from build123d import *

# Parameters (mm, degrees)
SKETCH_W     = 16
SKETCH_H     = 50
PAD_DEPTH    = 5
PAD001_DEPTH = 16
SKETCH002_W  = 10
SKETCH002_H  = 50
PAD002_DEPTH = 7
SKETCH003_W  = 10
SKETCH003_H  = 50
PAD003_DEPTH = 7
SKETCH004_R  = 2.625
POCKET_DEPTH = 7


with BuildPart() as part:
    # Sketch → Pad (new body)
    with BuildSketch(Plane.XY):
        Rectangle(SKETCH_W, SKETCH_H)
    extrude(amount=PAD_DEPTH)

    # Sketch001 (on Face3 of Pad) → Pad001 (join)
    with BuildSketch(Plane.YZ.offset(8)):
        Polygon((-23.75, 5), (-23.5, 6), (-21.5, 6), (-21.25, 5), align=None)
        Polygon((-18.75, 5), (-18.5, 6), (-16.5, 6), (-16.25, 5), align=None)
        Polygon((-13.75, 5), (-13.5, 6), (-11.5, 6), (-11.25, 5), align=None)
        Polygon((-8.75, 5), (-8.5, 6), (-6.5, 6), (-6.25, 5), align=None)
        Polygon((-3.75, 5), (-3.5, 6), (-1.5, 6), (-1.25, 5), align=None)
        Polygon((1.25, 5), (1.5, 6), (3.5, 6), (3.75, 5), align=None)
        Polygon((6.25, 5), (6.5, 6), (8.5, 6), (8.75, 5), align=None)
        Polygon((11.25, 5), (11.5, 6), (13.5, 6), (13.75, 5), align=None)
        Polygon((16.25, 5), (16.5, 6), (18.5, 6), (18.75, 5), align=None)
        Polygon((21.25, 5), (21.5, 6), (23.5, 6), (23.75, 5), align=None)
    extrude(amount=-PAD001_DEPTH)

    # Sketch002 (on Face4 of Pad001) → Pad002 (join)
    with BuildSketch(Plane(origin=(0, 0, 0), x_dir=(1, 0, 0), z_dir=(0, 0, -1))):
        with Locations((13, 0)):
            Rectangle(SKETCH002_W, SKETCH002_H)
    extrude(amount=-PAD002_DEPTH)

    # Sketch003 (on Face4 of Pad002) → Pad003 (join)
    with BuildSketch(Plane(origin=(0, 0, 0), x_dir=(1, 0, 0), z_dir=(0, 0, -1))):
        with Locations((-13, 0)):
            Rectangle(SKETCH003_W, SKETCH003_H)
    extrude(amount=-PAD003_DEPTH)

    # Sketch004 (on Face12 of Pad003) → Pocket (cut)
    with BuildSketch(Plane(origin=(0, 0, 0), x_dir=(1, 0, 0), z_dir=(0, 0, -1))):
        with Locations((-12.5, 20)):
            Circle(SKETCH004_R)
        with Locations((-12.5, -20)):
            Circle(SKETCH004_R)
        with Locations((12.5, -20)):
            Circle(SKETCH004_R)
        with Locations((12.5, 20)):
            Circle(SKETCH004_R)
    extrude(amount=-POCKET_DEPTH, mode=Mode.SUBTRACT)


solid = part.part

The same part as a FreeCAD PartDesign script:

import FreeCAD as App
import Part
import Sketcher
from FreeCAD import Vector

doc = App.newDocument("Part")
body = doc.addObject("PartDesign::Body", "Body")

# Sketch on XY plane
sketch1 = doc.addObject("Sketcher::SketchObject", "Sketch")
body.addObject(sketch1)
sketch1.AttachmentSupport = (doc.XY_Plane, [""])
sketch1.MapMode = "FlatFace"
sketch1.addGeometry([
    Part.LineSegment(Vector(-8, 25, 0), Vector(-8, -25, 0)),
    Part.LineSegment(Vector(-8, -25, 0), Vector(8, -25, 0)),
    Part.LineSegment(Vector(8, -25, 0), Vector(8, 25, 0)),
    Part.LineSegment(Vector(8, 25, 0), Vector(-8, 25, 0)),
], False)
sketch1.addConstraint([
    Sketcher.Constraint("Coincident", 0, 2, 1, 1),
    Sketcher.Constraint("Coincident", 1, 2, 2, 1),
    Sketcher.Constraint("Coincident", 2, 2, 3, 1),
    Sketcher.Constraint("Coincident", 3, 2, 0, 1),
    Sketcher.Constraint("Vertical", 0),
    Sketcher.Constraint("Horizontal", 1),
    Sketcher.Constraint("Vertical", 2),
    Sketcher.Constraint("Horizontal", 3),
    Sketcher.Constraint("Symmetric", 0, 2, 2, 2, -1, 1),
    Sketcher.Constraint("DistanceX", 1, 1, 1, 2, 16.0),
    Sketcher.Constraint("DistanceY", 0, 2, 0, 1, 50.0),
])
pad1 = doc.addObject("PartDesign::Pad", "Pad")
body.addObject(pad1)
pad1.Profile = sketch1
pad1.Length = 5

# Sketch on YZ plane
sketch2 = doc.addObject("Sketcher::SketchObject", "Sketch001")
body.addObject(sketch2)
sketch2.AttachmentSupport = (doc.YZ_Plane, [""])
sketch2.MapMode = "FlatFace"
sketch2.AttachmentOffset = App.Placement(Vector(0, 0, 8), App.Rotation())
sketch2.addGeometry([
    Part.LineSegment(Vector(-23.5, 6, 0), Vector(-23.75, 5, 0)),  # 0
    Part.LineSegment(Vector(-23.75, 5, 0), Vector(-21.25, 5, 0)),  # 1
    Part.LineSegment(Vector(-21.25, 5, 0), Vector(-21.5, 6, 0)),  # 2
    Part.LineSegment(Vector(-21.5, 6, 0), Vector(-23.5, 6, 0)),  # 3
    Part.LineSegment(Vector(-18.5, 6, 0), Vector(-18.75, 5, 0)),  # 4
    Part.LineSegment(Vector(-18.75, 5, 0), Vector(-16.25, 5, 0)),  # 5
    Part.LineSegment(Vector(-16.25, 5, 0), Vector(-16.5, 6, 0)),  # 6
    Part.LineSegment(Vector(-16.5, 6, 0), Vector(-18.5, 6, 0)),  # 7
    Part.LineSegment(Vector(-13.5, 6, 0), Vector(-13.75, 5, 0)),  # 8
    Part.LineSegment(Vector(-13.75, 5, 0), Vector(-11.25, 5, 0)),  # 9
    Part.LineSegment(Vector(-11.25, 5, 0), Vector(-11.5, 6, 0)),  # 10
    Part.LineSegment(Vector(-11.5, 6, 0), Vector(-13.5, 6, 0)),  # 11
    Part.LineSegment(Vector(-8.5, 6, 0), Vector(-8.75, 5, 0)),  # 12
    Part.LineSegment(Vector(-8.75, 5, 0), Vector(-6.25, 5, 0)),  # 13
    Part.LineSegment(Vector(-6.25, 5, 0), Vector(-6.5, 6, 0)),  # 14
    Part.LineSegment(Vector(-6.5, 6, 0), Vector(-8.5, 6, 0)),  # 15
    Part.LineSegment(Vector(-3.5, 6, 0), Vector(-3.75, 5, 0)),  # 16
    Part.LineSegment(Vector(-3.75, 5, 0), Vector(-1.25, 5, 0)),  # 17
    Part.LineSegment(Vector(-1.25, 5, 0), Vector(-1.5, 6, 0)),  # 18
    Part.LineSegment(Vector(-1.5, 6, 0), Vector(-3.5, 6, 0)),  # 19
    Part.LineSegment(Vector(1.5, 6, 0), Vector(1.25, 5, 0)),  # 20
    Part.LineSegment(Vector(1.25, 5, 0), Vector(3.75, 5, 0)),  # 21
    Part.LineSegment(Vector(3.75, 5, 0), Vector(3.5, 6, 0)),  # 22
    Part.LineSegment(Vector(3.5, 6, 0), Vector(1.5, 6, 0)),  # 23
    Part.LineSegment(Vector(6.5, 6, 0), Vector(6.25, 5, 0)),  # 24
    Part.LineSegment(Vector(6.25, 5, 0), Vector(8.75, 5, 0)),  # 25
    Part.LineSegment(Vector(8.75, 5, 0), Vector(8.5, 6, 0)),  # 26
    Part.LineSegment(Vector(8.5, 6, 0), Vector(6.5, 6, 0)),  # 27
    Part.LineSegment(Vector(11.5, 6, 0), Vector(11.25, 5, 0)),  # 28
    Part.LineSegment(Vector(11.25, 5, 0), Vector(13.75, 5, 0)),  # 29
    Part.LineSegment(Vector(13.75, 5, 0), Vector(13.5, 6, 0)),  # 30
    Part.LineSegment(Vector(13.5, 6, 0), Vector(11.5, 6, 0)),  # 31
    Part.LineSegment(Vector(16.5, 6, 0), Vector(16.25, 5, 0)),  # 32
    Part.LineSegment(Vector(16.25, 5, 0), Vector(18.75, 5, 0)),  # 33
    Part.LineSegment(Vector(18.75, 5, 0), Vector(18.5, 6, 0)),  # 34
    Part.LineSegment(Vector(18.5, 6, 0), Vector(16.5, 6, 0)),  # 35
    Part.LineSegment(Vector(21.5, 6, 0), Vector(21.25, 5, 0)),  # 36
    Part.LineSegment(Vector(21.25, 5, 0), Vector(23.75, 5, 0)),  # 37
    Part.LineSegment(Vector(23.75, 5, 0), Vector(23.5, 6, 0)),  # 38
    Part.LineSegment(Vector(23.5, 6, 0), Vector(21.5, 6, 0)),  # 39
], False)
sketch2.addConstraint([
    Sketcher.Constraint("Coincident", 0, 2, 1, 1),
    Sketcher.Constraint("Coincident", 1, 2, 2, 1),
    Sketcher.Constraint("Coincident", 2, 2, 3, 1),
    Sketcher.Constraint("Coincident", 3, 2, 0, 1),
    Sketcher.Constraint("Coincident", 4, 2, 5, 1),
    Sketcher.Constraint("Coincident", 5, 2, 6, 1),
    Sketcher.Constraint("Coincident", 6, 2, 7, 1),
    Sketcher.Constraint("Coincident", 7, 2, 4, 1),
    Sketcher.Constraint("Coincident", 8, 2, 9, 1),
    Sketcher.Constraint("Coincident", 9, 2, 10, 1),
    Sketcher.Constraint("Coincident", 10, 2, 11, 1),
    Sketcher.Constraint("Coincident", 11, 2, 8, 1),
    Sketcher.Constraint("Coincident", 12, 2, 13, 1),
    Sketcher.Constraint("Coincident", 13, 2, 14, 1),
    Sketcher.Constraint("Coincident", 14, 2, 15, 1),
    Sketcher.Constraint("Coincident", 15, 2, 12, 1),
    Sketcher.Constraint("Coincident", 16, 2, 17, 1),
    Sketcher.Constraint("Coincident", 17, 2, 18, 1),
    Sketcher.Constraint("Coincident", 18, 2, 19, 1),
    Sketcher.Constraint("Coincident", 19, 2, 16, 1),
    Sketcher.Constraint("Coincident", 20, 2, 21, 1),
    Sketcher.Constraint("Coincident", 21, 2, 22, 1),
    Sketcher.Constraint("Coincident", 22, 2, 23, 1),
    Sketcher.Constraint("Coincident", 23, 2, 20, 1),
    Sketcher.Constraint("Coincident", 24, 2, 25, 1),
    Sketcher.Constraint("Coincident", 25, 2, 26, 1),
    Sketcher.Constraint("Coincident", 26, 2, 27, 1),
    Sketcher.Constraint("Coincident", 27, 2, 24, 1),
    Sketcher.Constraint("Coincident", 28, 2, 29, 1),
    Sketcher.Constraint("Coincident", 29, 2, 30, 1),
    Sketcher.Constraint("Coincident", 30, 2, 31, 1),
    Sketcher.Constraint("Coincident", 31, 2, 28, 1),
    Sketcher.Constraint("Coincident", 32, 2, 33, 1),
    Sketcher.Constraint("Coincident", 33, 2, 34, 1),
    Sketcher.Constraint("Coincident", 34, 2, 35, 1),
    Sketcher.Constraint("Coincident", 35, 2, 32, 1),
    Sketcher.Constraint("Coincident", 36, 2, 37, 1),
    Sketcher.Constraint("Coincident", 37, 2, 38, 1),
    Sketcher.Constraint("Coincident", 38, 2, 39, 1),
    Sketcher.Constraint("Coincident", 39, 2, 36, 1),
    Sketcher.Constraint("Horizontal", 1),
    Sketcher.Constraint("Horizontal", 3),
    Sketcher.Constraint("Horizontal", 5),
    Sketcher.Constraint("Horizontal", 7),
    Sketcher.Constraint("Horizontal", 9),
    Sketcher.Constraint("Horizontal", 11),
    Sketcher.Constraint("Horizontal", 13),
    Sketcher.Constraint("Horizontal", 15),
    Sketcher.Constraint("Horizontal", 17),
    Sketcher.Constraint("Horizontal", 19),
    Sketcher.Constraint("Horizontal", 21),
    Sketcher.Constraint("Horizontal", 23),
    Sketcher.Constraint("Horizontal", 25),
    Sketcher.Constraint("Horizontal", 27),
    Sketcher.Constraint("Horizontal", 29),
    Sketcher.Constraint("Horizontal", 31),
    Sketcher.Constraint("Horizontal", 33),
    Sketcher.Constraint("Horizontal", 35),
    Sketcher.Constraint("Horizontal", 37),
    Sketcher.Constraint("Horizontal", 39),
    Sketcher.Constraint("Symmetric", 17, 2, 20, 2, -2),
    Sketcher.Constraint("Symmetric", 19, 2, 22, 2, -2),
    Sketcher.Constraint("Symmetric", 13, 2, 24, 2, -2),
    Sketcher.Constraint("Symmetric", 15, 2, 26, 2, -2),
    Sketcher.Constraint("Symmetric", 9, 2, 28, 2, -2),
    Sketcher.Constraint("Symmetric", 11, 2, 30, 2, -2),
    Sketcher.Constraint("Symmetric", 5, 2, 32, 2, -2),
    Sketcher.Constraint("Symmetric", 7, 2, 34, 2, -2),
    Sketcher.Constraint("Symmetric", 1, 2, 36, 2, -2),
    Sketcher.Constraint("Symmetric", 3, 2, 38, 2, -2),
    Sketcher.Constraint("Parallel", 0, 4),
    Sketcher.Constraint("Parallel", 2, 6),
    Sketcher.Constraint("Parallel", 4, 8),
    Sketcher.Constraint("Parallel", 6, 10),
    Sketcher.Constraint("Parallel", 8, 12),
    Sketcher.Constraint("Parallel", 10, 14),
    Sketcher.Constraint("Parallel", 12, 16),
    Sketcher.Constraint("Parallel", 14, 18),
    Sketcher.Constraint("Parallel", 16, 20),
    Sketcher.Constraint("Parallel", 18, 22),
    Sketcher.Constraint("Parallel", 20, 24),
    Sketcher.Constraint("Parallel", 22, 26),
    Sketcher.Constraint("Parallel", 24, 28),
    Sketcher.Constraint("Parallel", 26, 30),
    Sketcher.Constraint("Parallel", 28, 32),
    Sketcher.Constraint("Parallel", 30, 34),
    Sketcher.Constraint("Parallel", 32, 36),
    Sketcher.Constraint("Parallel", 34, 38),
    Sketcher.Constraint("Horizontal", 1, 2, 4, 2),
    Sketcher.Constraint("Horizontal", 3, 2, 6, 2),
    Sketcher.Constraint("Horizontal", 5, 2, 8, 2),
    Sketcher.Constraint("Horizontal", 7, 2, 10, 2),
    Sketcher.Constraint("Horizontal", 9, 2, 12, 2),
    Sketcher.Constraint("Horizontal", 11, 2, 14, 2),
    Sketcher.Constraint("Horizontal", 13, 2, 16, 2),
    Sketcher.Constraint("Horizontal", 15, 2, 18, 2),
    Sketcher.Constraint("Equal", 1, 5),
    Sketcher.Constraint("Equal", 5, 9),
    Sketcher.Constraint("Equal", 9, 13),
    Sketcher.Constraint("Equal", 13, 17),
    Sketcher.Constraint("Equal", 17, 21),
    Sketcher.Constraint("DistanceX", 3, 2, 3, 1, 2.0),
    Sketcher.Constraint("DistanceX", 1, 1, 1, 2, 2.5),
    Sketcher.Constraint("DistanceY", -1, 1, 0, 2, 5.0),
    Sketcher.Constraint("DistanceY", -1, 1, 2, 2, 6.0),
    Sketcher.Constraint("DistanceX", 0, 2, 4, 2, 5.0),
    Sketcher.Constraint("DistanceX", 4, 2, 8, 2, 5.0),
    Sketcher.Constraint("DistanceX", 8, 2, 12, 2, 5.0),
    Sketcher.Constraint("DistanceX", 12, 2, 16, 2, 5.0),
    Sketcher.Constraint("DistanceX", 16, 2, 20, 2, 5.0),
])
pad2 = doc.addObject("PartDesign::Pad", "Pad001")
body.addObject(pad2)
pad2.Profile = sketch2
pad2.Length = 16
pad2.Reversed = True

# Sketch on XY plane
sketch3 = doc.addObject("Sketcher::SketchObject", "Sketch002")
body.addObject(sketch3)
sketch3.AttachmentSupport = (doc.XY_Plane, [""])
sketch3.MapMode = "FlatFace"
sketch3.addGeometry([
    Part.LineSegment(Vector(8, -25, 0), Vector(8, 25, 0)),
    Part.LineSegment(Vector(8, 25, 0), Vector(18, 25, 0)),
    Part.LineSegment(Vector(18, 25, 0), Vector(18, -25, 0)),
    Part.LineSegment(Vector(18, -25, 0), Vector(8, -25, 0)),
], False)
sketch3.addConstraint([
    Sketcher.Constraint("Coincident", 0, 2, 1, 1),
    Sketcher.Constraint("Coincident", 1, 2, 2, 1),
    Sketcher.Constraint("Coincident", 2, 2, 3, 1),
    Sketcher.Constraint("Coincident", 3, 2, 0, 1),
    Sketcher.Constraint("Vertical", 0),
    Sketcher.Constraint("Horizontal", 1),
    Sketcher.Constraint("Vertical", 2),
    Sketcher.Constraint("Horizontal", 3),
    Sketcher.Constraint("DistanceX", 1, 1, 1, 2, 10.0),
    Sketcher.Constraint("DistanceY", 0, 1, 0, 2, 50.0),
    Sketcher.Constraint("DistanceX", -1, 1, 0, 2, 8.0),
    Sketcher.Constraint("DistanceY", -1, 1, 0, 2, 25.0),
])
pad3 = doc.addObject("PartDesign::Pad", "Pad002")
body.addObject(pad3)
pad3.Profile = sketch3
pad3.Length = 7

# Sketch on XY plane
sketch4 = doc.addObject("Sketcher::SketchObject", "Sketch003")
body.addObject(sketch4)
sketch4.AttachmentSupport = (doc.XY_Plane, [""])
sketch4.MapMode = "FlatFace"
sketch4.addGeometry([
    Part.LineSegment(Vector(-18, -25, 0), Vector(-18, 25, 0)),
    Part.LineSegment(Vector(-18, 25, 0), Vector(-8, 25, 0)),
    Part.LineSegment(Vector(-8, 25, 0), Vector(-8, -25, 0)),
    Part.LineSegment(Vector(-8, -25, 0), Vector(-18, -25, 0)),
], False)
sketch4.addConstraint([
    Sketcher.Constraint("Coincident", 0, 2, 1, 1),
    Sketcher.Constraint("Coincident", 1, 2, 2, 1),
    Sketcher.Constraint("Coincident", 2, 2, 3, 1),
    Sketcher.Constraint("Coincident", 3, 2, 0, 1),
    Sketcher.Constraint("Vertical", 0),
    Sketcher.Constraint("Horizontal", 1),
    Sketcher.Constraint("Vertical", 2),
    Sketcher.Constraint("Horizontal", 3),
    Sketcher.Constraint("DistanceX", 1, 1, 1, 2, 10.0),
    Sketcher.Constraint("DistanceY", 0, 1, 0, 2, 50.0),
    Sketcher.Constraint("DistanceX", 0, 2, -1, 1, 18.0),
    Sketcher.Constraint("DistanceY", -1, 1, 0, 2, 25.0),
])
pad4 = doc.addObject("PartDesign::Pad", "Pad003")
body.addObject(pad4)
pad4.Profile = sketch4
pad4.Length = 7

# Sketch on XY plane
sketch5 = doc.addObject("Sketcher::SketchObject", "Sketch004")
body.addObject(sketch5)
sketch5.AttachmentSupport = (doc.XY_Plane, [""])
sketch5.MapMode = "FlatFace"
sketch5.addGeometry([
    Part.Circle(Vector(-12.5, -20, 0), Vector(0, 0, 1), 2.625),
    Part.Circle(Vector(-12.5, 20, 0), Vector(0, 0, 1), 2.625),
    Part.Circle(Vector(12.5, 20, 0), Vector(0, 0, 1), 2.625),
    Part.Circle(Vector(12.5, -20, 0), Vector(0, 0, 1), 2.625),
], False)
sketch5.addConstraint([
    Sketcher.Constraint("Equal", 0, 1),
    Sketcher.Constraint("Equal", 1, 2),
    Sketcher.Constraint("Equal", 2, 3),
    Sketcher.Constraint("Symmetric", 0, 3, 2, 3, -1, 1),
    Sketcher.Constraint("Symmetric", 1, 3, 3, 3, -1, 1),
    Sketcher.Constraint("Symmetric", 1, 3, 2, 3, -2),
    Sketcher.Constraint("Diameter", 0, 5.25),
    Sketcher.Constraint("DistanceY", 0, 3, -1, 1, 20.0),
    Sketcher.Constraint("DistanceX", 1, 3, 2, 3, 25.0),
])
pocket1 = doc.addObject("PartDesign::Pocket", "Pocket")
body.addObject(pocket1)
pocket1.Profile = sketch5
pocket1.Length = 7
pocket1.Reversed = True

doc.recompute()
